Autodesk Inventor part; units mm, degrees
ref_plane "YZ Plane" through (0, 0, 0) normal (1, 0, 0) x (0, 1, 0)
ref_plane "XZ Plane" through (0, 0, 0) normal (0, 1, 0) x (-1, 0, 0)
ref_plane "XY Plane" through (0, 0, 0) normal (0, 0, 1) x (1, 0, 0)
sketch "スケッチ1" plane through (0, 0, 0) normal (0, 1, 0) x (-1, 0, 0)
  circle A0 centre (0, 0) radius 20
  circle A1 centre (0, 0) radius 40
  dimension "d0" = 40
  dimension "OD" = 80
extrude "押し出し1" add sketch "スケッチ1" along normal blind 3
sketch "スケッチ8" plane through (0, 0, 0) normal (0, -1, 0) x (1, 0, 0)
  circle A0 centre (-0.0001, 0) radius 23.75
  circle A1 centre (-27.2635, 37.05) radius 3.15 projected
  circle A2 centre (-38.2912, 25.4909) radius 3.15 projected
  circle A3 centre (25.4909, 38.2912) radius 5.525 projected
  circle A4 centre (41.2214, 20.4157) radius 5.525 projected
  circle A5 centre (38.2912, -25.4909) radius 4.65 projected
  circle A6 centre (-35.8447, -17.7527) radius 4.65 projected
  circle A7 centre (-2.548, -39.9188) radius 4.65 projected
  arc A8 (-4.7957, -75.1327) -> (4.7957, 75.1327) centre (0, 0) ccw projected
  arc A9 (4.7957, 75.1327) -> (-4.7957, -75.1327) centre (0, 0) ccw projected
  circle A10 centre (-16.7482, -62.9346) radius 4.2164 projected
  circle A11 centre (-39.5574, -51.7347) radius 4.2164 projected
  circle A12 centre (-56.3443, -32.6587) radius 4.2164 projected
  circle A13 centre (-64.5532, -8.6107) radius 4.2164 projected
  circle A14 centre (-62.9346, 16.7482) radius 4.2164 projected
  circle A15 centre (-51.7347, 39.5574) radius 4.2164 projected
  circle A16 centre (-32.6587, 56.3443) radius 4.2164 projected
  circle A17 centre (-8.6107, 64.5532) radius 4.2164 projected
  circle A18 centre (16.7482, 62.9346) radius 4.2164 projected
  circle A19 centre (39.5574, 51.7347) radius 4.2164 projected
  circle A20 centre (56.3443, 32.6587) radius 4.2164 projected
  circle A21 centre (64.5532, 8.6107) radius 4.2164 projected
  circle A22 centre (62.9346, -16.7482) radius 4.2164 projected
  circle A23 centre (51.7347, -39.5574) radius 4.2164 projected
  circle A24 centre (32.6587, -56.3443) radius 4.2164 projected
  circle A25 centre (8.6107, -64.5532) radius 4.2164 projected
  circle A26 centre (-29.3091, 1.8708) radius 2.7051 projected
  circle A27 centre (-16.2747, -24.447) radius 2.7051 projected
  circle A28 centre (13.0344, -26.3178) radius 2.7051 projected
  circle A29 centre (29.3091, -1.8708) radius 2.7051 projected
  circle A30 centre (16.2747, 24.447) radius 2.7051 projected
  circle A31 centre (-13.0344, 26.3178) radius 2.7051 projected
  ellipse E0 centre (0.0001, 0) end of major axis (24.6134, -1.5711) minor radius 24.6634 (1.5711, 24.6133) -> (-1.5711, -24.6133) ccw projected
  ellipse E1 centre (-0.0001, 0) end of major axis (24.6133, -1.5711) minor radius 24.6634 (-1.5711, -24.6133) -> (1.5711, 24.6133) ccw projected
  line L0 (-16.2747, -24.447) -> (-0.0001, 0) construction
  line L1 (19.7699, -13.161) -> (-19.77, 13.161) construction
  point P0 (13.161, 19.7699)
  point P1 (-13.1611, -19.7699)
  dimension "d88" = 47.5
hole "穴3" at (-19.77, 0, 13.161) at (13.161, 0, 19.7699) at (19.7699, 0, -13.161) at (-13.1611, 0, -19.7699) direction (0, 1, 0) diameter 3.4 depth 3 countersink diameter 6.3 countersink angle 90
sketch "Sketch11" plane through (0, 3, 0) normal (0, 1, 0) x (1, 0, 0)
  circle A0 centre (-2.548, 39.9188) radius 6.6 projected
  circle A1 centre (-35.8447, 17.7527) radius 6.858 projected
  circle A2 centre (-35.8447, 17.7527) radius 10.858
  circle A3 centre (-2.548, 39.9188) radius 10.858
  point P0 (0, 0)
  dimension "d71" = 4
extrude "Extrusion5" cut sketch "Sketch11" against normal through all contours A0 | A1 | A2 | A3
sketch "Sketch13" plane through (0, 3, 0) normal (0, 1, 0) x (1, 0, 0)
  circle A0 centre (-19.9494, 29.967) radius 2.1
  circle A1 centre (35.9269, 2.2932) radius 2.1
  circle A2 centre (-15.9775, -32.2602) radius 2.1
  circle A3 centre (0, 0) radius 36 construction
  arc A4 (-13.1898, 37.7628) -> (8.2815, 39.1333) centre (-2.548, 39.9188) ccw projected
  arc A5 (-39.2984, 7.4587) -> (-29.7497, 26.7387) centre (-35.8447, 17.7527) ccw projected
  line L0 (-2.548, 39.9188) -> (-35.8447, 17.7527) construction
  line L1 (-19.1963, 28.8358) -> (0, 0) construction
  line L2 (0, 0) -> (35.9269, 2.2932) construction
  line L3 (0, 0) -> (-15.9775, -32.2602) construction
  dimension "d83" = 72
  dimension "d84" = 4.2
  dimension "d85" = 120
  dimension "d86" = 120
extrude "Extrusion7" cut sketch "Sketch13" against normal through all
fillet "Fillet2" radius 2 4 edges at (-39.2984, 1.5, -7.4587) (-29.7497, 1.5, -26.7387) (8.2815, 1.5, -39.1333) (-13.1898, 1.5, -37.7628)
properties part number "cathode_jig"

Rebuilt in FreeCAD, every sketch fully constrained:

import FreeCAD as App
import Part
import Sketcher
from FreeCAD import Vector
Q = App.Units.Quantity


def edges_at(feature, points):
    """Names of the edges that pass closest to the given points."""
    edges = feature.Shape.Edges
    near = lambda p: min(range(len(edges)), key=lambda i: edges[i].distToShape(Part.Vertex(*p))[0])
    return sorted({f"Edge{near(p) + 1}" for p in points})

doc = App.newDocument("Part")
params = doc.addObject("Spreadsheet::Sheet", "Params")
for row, (alias, value) in enumerate([
    ("sketch1_diameter", "80 mm"),
    ("sketch1_diameter2", "40 mm"),
    ("pad1_length", "3 mm"),
    ("sketch2_diameter", "3.4 mm"),
    ("hole_diameter", "3.4 mm"),
    ("hole_depth", "3 mm"),
    ("hole_csink_diameter", "6.3 mm"),
    ("sketch4_diameter", "4.2 mm"),
    ("fillet_radius", "2 mm"),
], start=1):
    params.set(f"A{row}", alias)
    params.set(f"B{row}", "=" + value)
    params.setAlias(f"B{row}", alias)

body = doc.addObject("PartDesign::Body", "Body")

# Sketch on XZ plane
sketch1 = doc.addObject("Sketcher::SketchObject", "Sketch")
body.addObject(sketch1)
sketch1.AttachmentSupport = (doc.XZ_Plane, [""])
sketch1.MapMode = "FlatFace"
sketch1.addGeometry([
    Part.Circle(Vector(0, 0, 0), Vector(0, 0, 1), 40),
    Part.Circle(Vector(0, 0, 0), Vector(0, 0, 1), 20),
], False)
sketch1.addConstraint([
    Sketcher.Constraint("Coincident", 0, 3, -1, 1),
    Sketcher.Constraint("Coincident", 1, 3, -1, 1),
    Sketcher.Constraint("Diameter", 0, Q("80 mm")),
    Sketcher.Constraint("Diameter", 1, Q("40 mm")),
])
sketch1.setExpression("Constraints[2]", "Params.sketch1_diameter")
sketch1.setExpression("Constraints[3]", "Params.sketch1_diameter2")
pad1 = doc.addObject("PartDesign::Pad", "Pad")
body.addObject(pad1)
pad1.Profile = sketch1
pad1.setExpression("Length", "Params.pad1_length")
pad1.Reversed = True

# Sketch on XZ plane
sketch2 = doc.addObject("Sketcher::SketchObject", "Sketch001")
body.addObject(sketch2)
sketch2.AttachmentSupport = (doc.XZ_Plane, [""])
sketch2.MapMode = "FlatFace"
sketch2.addGeometry([
    Part.Circle(Vector(-19.8, 13.2, 0), Vector(0, 0, 1), 1.7),
    Part.Circle(Vector(13.2, 19.8, 0), Vector(0, 0, 1), 1.7),
    Part.Circle(Vector(19.8, -13.2, 0), Vector(0, 0, 1), 1.7),
    Part.Circle(Vector(-13.2, -19.8, 0), Vector(0, 0, 1), 1.7),
], False)
sketch2.addConstraint([
    Sketcher.Constraint("Equal", 0, 1),
    Sketcher.Constraint("Equal", 1, 2),
    Sketcher.Constraint("Equal", 2, 3),
    Sketcher.Constraint("Symmetric", 0, 3, 2, 3, -1, 1),
    Sketcher.Constraint("Symmetric", 1, 3, 3, 3, -1, 1),
    Sketcher.Constraint("Diameter", 0, Q("3.4 mm")),
    Sketcher.Constraint("DistanceX", 0, 3, -1, 1, Q("19.77 mm")),
    Sketcher.Constraint("DistanceY", -1, 1, 1, 3, Q("19.77 mm")),
    Sketcher.Constraint("DistanceY", -1, 1, 0, 3, Q("13.161 mm")),
    Sketcher.Constraint("DistanceX", -1, 1, 1, 3, Q("13.161 mm")),
])
sketch2.setExpression("Constraints[5]", "Params.sketch2_diameter")
doc.recompute()
hole = doc.addObject("PartDesign::Hole", "Hole")
body.addObject(hole)
hole.Profile = sketch2
hole.ThreadType = "None"
hole.setExpression("Diameter", "Params.hole_diameter")
hole.DepthType = "Dimension"
hole.setExpression("Depth", "Params.hole_depth")
hole.DrillPoint = "Flat"
hole.HoleCutType = "Countersink"
hole.setExpression("HoleCutDiameter", "Params.hole_csink_diameter")
hole.HoleCutCountersinkAngle = 90

# Sketch on XZ plane
sketch3 = doc.addObject("Sketcher::SketchObject", "Sketch002")
body.addObject(sketch3)
sketch3.AttachmentSupport = (doc.XZ_Plane, [""])
sketch3.MapMode = "FlatFace"
sketch3.AttachmentOffset = App.Placement(Vector(0, 0, -3), App.Rotation())
sketch3.addGeometry([
    Part.Circle(Vector(-3, -40, 0), Vector(0, 0, 1), 11),
    Part.Circle(Vector(-36, -18, 0), Vector(0, 0, 1), 11),
], False)
sketch3.addConstraint([
    Sketcher.Constraint("Equal", 0, 1),
    Sketcher.Constraint("Diameter", 0, Q("21.716 mm")),
    Sketcher.Constraint("DistanceX", 0, 3, -1, 1, Q("2.548 mm")),
    Sketcher.Constraint("DistanceY", 0, 3, 1, 3, Q("22.166 mm")),
    Sketcher.Constraint("DistanceY", 0, 3, -1, 1, Q("39.9188 mm")),
    Sketcher.Constraint("DistanceX", 1, 3, -1, 1, Q("35.8447 mm")),
])
pocket1 = doc.addObject("PartDesign::Pocket", "Pocket")
body.addObject(pocket1)
pocket1.Profile = sketch3
pocket1.Type = "ThroughAll"
pocket1.Reversed = True

# Sketch on XZ plane
sketch4 = doc.addObject("Sketcher::SketchObject", "Sketch003")
body.addObject(sketch4)
sketch4.AttachmentSupport = (doc.XZ_Plane, [""])
sketch4.MapMode = "FlatFace"
sketch4.AttachmentOffset = App.Placement(Vector(0, 0, -3), App.Rotation())
sketch4.addGeometry([
    Part.Circle(Vector(-19.9, -30, 0), Vector(0, 0, 1), 2.1),
    Part.Circle(Vector(35.9, -2.3, 0), Vector(0, 0, 1), 2.1),
    Part.Circle(Vector(-16, 32.3, 0), Vector(0, 0, 1), 2.1),
], False)
sketch4.addConstraint([
    Sketcher.Constraint("Equal", 0, 1),
    Sketcher.Constraint("Equal", 1, 2),
    Sketcher.Constraint("Diameter", 0, Q("4.2 mm")),
    Sketcher.Constraint("DistanceY", 0, 3, -1, 1, Q("29.967 mm")),
    Sketcher.Constraint("DistanceX", -1, 1, 1, 3, Q("35.927 mm")),
    Sketcher.Constraint("DistanceX", 0, 3, 2, 3, Q("3.972 mm")),
    Sketcher.Constraint("DistanceX", 0, 3, -1, 1, Q("19.9494 mm")),
    Sketcher.Constraint("DistanceY", 1, 3, -1, 1, Q("2.2932 mm")),
    Sketcher.Constraint("DistanceY", -1, 1, 2, 3, Q("32.2602 mm")),
])
sketch4.setExpression("Constraints[2]", "Params.sketch4_diameter")
pocket2 = doc.addObject("PartDesign::Pocket", "Pocket001")
body.addObject(pocket2)
pocket2.Profile = sketch4
pocket2.Type = "ThroughAll"
pocket2.Reversed = True
doc.recompute()

fillet = doc.addObject("PartDesign::Fillet", "Fillet")
body.addObject(fillet)
fillet.Base = (pocket2, edges_at(pocket2, [
    (-39.298, 1.5, -7.459),
    (-29.75, 1.5, -26.739),
    (8.281, 1.5, -39.133),
    (-13.19, 1.5, -37.763),
]))
fillet.setExpression("Radius", "Params.fillet_radius")

doc.recompute()
